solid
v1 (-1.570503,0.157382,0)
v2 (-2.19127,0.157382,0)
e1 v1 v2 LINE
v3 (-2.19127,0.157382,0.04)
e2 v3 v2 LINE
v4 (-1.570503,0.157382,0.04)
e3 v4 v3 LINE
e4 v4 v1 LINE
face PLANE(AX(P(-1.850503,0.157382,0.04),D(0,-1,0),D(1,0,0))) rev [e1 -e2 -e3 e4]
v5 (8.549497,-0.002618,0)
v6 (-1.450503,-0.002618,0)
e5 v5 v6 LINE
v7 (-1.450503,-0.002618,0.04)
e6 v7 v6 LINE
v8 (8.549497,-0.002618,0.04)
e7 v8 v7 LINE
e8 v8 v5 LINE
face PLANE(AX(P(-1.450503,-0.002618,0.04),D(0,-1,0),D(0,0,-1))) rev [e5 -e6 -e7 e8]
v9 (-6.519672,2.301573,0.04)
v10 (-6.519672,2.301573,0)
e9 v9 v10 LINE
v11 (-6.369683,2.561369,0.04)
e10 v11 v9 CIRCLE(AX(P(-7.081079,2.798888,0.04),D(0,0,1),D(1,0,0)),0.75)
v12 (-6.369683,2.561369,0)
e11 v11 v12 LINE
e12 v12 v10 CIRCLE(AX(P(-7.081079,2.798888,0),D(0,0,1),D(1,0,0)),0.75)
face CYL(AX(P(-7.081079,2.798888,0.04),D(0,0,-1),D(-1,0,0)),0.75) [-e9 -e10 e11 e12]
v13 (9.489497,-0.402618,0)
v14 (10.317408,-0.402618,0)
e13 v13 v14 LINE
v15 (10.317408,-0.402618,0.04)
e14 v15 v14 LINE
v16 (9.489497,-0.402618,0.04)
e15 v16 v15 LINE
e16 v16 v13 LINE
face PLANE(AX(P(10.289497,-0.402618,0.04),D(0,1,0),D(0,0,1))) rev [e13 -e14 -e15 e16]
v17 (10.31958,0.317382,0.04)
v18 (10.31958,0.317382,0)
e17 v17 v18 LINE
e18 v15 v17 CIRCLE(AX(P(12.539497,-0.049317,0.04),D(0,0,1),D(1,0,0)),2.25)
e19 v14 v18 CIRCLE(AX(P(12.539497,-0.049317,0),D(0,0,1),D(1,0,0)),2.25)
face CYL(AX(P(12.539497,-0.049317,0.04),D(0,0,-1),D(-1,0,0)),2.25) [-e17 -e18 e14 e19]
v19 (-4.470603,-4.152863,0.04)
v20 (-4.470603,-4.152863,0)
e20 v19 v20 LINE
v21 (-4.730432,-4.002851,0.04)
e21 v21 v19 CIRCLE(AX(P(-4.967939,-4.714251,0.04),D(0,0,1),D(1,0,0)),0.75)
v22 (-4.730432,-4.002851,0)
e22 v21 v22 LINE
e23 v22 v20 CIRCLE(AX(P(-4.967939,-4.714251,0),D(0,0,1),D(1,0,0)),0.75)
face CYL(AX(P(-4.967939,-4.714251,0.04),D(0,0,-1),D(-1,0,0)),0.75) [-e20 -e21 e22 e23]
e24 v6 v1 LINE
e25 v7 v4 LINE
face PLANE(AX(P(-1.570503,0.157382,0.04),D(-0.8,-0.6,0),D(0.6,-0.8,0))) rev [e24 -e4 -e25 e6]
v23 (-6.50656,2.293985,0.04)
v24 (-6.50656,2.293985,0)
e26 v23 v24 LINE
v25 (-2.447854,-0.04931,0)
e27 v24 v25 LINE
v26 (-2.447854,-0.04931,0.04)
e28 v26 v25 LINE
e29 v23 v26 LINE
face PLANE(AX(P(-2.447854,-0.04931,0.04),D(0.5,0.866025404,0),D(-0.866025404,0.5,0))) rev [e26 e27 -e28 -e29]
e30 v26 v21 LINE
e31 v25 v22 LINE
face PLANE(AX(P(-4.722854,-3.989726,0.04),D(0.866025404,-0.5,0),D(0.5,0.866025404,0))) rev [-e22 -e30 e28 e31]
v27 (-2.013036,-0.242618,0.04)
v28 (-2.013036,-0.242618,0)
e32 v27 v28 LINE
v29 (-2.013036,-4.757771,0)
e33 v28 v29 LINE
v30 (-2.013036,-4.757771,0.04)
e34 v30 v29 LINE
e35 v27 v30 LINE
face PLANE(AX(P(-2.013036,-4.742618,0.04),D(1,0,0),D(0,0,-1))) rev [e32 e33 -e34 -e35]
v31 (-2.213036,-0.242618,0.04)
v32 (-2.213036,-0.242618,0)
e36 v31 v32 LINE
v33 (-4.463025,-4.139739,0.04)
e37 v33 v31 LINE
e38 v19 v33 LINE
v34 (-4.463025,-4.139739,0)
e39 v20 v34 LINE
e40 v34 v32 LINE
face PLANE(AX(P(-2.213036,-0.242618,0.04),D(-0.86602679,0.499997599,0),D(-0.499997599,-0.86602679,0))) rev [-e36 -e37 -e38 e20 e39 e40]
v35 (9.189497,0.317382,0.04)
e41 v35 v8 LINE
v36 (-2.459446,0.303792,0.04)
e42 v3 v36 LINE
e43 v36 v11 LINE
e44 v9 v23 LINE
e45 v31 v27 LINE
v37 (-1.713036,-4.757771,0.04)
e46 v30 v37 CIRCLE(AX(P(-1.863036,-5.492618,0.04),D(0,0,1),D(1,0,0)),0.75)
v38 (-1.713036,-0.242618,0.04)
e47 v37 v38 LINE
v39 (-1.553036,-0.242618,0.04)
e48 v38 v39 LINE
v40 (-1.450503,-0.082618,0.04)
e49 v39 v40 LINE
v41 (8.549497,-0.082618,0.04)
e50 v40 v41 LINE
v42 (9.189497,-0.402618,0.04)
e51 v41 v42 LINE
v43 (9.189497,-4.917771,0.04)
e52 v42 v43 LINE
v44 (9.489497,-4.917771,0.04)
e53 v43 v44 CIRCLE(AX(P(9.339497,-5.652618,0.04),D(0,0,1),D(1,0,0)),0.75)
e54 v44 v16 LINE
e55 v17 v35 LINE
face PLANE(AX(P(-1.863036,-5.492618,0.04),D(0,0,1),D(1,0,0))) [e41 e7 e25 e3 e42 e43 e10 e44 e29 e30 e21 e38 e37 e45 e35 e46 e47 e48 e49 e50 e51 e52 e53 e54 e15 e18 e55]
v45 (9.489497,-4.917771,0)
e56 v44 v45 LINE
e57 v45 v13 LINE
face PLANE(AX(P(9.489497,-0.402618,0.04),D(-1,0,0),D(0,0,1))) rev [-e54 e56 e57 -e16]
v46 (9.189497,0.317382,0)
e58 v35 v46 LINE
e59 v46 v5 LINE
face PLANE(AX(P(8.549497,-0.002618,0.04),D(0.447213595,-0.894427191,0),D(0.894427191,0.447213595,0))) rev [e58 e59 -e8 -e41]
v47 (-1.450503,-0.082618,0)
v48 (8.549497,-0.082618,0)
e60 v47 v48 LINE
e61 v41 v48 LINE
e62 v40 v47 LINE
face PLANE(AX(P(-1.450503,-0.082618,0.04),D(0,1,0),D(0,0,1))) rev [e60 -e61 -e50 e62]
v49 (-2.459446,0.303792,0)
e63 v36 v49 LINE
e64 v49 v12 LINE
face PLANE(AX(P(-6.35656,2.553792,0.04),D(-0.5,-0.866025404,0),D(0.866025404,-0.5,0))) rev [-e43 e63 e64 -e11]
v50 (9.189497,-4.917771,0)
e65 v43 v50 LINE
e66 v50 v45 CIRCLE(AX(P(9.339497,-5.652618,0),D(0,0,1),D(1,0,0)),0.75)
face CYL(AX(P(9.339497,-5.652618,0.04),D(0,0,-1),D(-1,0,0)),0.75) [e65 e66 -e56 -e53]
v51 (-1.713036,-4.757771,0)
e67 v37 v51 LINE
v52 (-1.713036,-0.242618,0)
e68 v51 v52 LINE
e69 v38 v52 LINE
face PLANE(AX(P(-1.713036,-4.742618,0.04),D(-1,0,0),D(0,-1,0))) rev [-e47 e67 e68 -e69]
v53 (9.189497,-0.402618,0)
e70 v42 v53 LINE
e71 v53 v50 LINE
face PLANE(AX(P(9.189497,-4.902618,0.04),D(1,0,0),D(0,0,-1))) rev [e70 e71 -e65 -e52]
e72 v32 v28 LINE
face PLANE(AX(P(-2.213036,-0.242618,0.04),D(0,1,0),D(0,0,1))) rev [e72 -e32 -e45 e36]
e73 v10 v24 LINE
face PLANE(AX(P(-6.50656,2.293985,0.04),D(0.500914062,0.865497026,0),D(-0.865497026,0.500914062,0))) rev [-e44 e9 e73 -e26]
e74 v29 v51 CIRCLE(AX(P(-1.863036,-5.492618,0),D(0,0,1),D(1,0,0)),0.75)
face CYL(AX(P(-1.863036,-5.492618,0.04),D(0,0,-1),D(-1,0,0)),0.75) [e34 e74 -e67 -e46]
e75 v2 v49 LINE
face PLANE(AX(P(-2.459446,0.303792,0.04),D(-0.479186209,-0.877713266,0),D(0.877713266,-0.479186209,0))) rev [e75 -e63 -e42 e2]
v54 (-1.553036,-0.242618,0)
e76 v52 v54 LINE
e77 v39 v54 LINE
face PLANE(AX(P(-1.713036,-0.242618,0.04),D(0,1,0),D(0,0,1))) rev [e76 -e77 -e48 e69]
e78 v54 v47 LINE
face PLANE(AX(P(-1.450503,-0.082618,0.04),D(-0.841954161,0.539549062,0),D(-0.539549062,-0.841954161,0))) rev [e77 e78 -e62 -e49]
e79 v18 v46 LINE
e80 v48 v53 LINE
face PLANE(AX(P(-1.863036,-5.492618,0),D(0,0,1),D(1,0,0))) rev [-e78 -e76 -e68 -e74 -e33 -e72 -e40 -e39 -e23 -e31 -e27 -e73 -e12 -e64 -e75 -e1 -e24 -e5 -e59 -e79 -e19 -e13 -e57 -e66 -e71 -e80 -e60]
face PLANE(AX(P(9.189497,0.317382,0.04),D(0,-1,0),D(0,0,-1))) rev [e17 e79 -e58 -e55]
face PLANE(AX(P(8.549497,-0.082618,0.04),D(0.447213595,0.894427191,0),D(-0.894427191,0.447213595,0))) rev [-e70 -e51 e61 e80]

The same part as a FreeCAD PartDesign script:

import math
import FreeCAD as App
import Part
import Sketcher

V = App.Vector
Q = App.Units.Quantity

doc = App.newDocument("Part")
body = doc.addObject("PartDesign::Body", "Body")

# Sketch on XY plane
sketch1 = body.newObject("Sketcher::SketchObject", "Sketch")
sketch1.AttachmentSupport = (doc.getObject("XY_Plane"), [""])
sketch1.MapMode = "FlatFace"
sketch1.addGeometry([
    Part.LineSegment(V(-1.451, -0.003, 0), V(-1.571, 0.157, 0)),  # 0
    Part.LineSegment(V(-1.571, 0.157, 0), V(-2.191, 0.157, 0)),  # 1
    Part.LineSegment(V(-2.191, 0.157, 0), V(-2.459, 0.304, 0)),  # 2
    Part.LineSegment(V(-2.459, 0.304, 0), V(-6.357, 2.554, 0)),  # 3
    Part.LineSegment(V(-6.357, 2.554, 0), V(-6.37, 2.561, 0)),  # 4
    Part.ArcOfCircle(Part.Circle(V(-7.081, 2.799, 0), V(0, 0, 1), 0.75), math.radians(-18), math.radians(318)),  # 5
    Part.LineSegment(V(-6.52, 2.302, 0), V(-6.507, 2.294, 0)),  # 6
    Part.LineSegment(V(-6.507, 2.294, 0), V(-2.448, -0.049, 0)),  # 7
    Part.LineSegment(V(-2.448, -0.049, 0), V(-4.723, -3.99, 0)),  # 8
    Part.LineSegment(V(-4.723, -3.99, 0), V(-4.73, -4.003, 0)),  # 9
    Part.ArcOfCircle(Part.Circle(V(-4.968, -4.714, 0), V(0, 0, 1), 0.75), math.radians(72), math.radians(408)),  # 10
    Part.LineSegment(V(-4.471, -4.153, 0), V(-4.463, -4.14, 0)),  # 11
    Part.LineSegment(V(-4.463, -4.14, 0), V(-2.213, -0.243, 0)),  # 12
    Part.LineSegment(V(-2.213, -0.243, 0), V(-2.013, -0.243, 0)),  # 13
    Part.LineSegment(V(-2.013, -0.243, 0), V(-2.013, -4.758, 0)),  # 14
    Part.ArcOfCircle(Part.Circle(V(-1.863, -5.493, 0), V(0, 0, 1), 0.75), math.radians(102), math.radians(438)),  # 15
    Part.LineSegment(V(-1.713, -4.758, 0), V(-1.713, -0.243, 0)),  # 16
    Part.LineSegment(V(-1.713, -0.243, 0), V(-1.553, -0.243, 0)),  # 17
    Part.LineSegment(V(-1.553, -0.243, 0), V(-1.451, -0.083, 0)),  # 18
    Part.LineSegment(V(-1.451, -0.083, 0), V(8.549, -0.083, 0)),  # 19
    Part.LineSegment(V(8.549, -0.083, 0), V(9.189, -0.403, 0)),  # 20
    Part.LineSegment(V(9.189, -0.403, 0), V(9.189, -4.918, 0)),  # 21
    Part.ArcOfCircle(Part.Circle(V(9.339, -5.653, 0), V(0, 0, 1), 0.75), math.radians(102), math.radians(438)),  # 22
    Part.LineSegment(V(9.489, -4.918, 0), V(9.489, -0.403, 0)),  # 23
    Part.LineSegment(V(9.489, -0.403, 0), V(10.317, -0.403, 0)),  # 24
    Part.ArcOfCircle(Part.Circle(V(12.539, -0.049, 0), V(0, 0, 1), 2.25), math.radians(-171), math.radians(171)),  # 25
    Part.LineSegment(V(10.32, 0.317, 0), V(9.189, 0.317, 0)),  # 26
    Part.LineSegment(V(9.189, 0.317, 0), V(8.549, -0.003, 0)),  # 27
    Part.LineSegment(V(8.549, -0.003, 0), V(-1.451, -0.003, 0)),  # 28
], False)
sketch1.addConstraint([
    Sketcher.Constraint("Coincident", 0, 2, 1, 1),
    Sketcher.Constraint("Coincident", 1, 2, 2, 1),
    Sketcher.Constraint("Coincident", 2, 2, 3, 1),
    Sketcher.Constraint("Coincident", 3, 2, 4, 1),
    Sketcher.Constraint("Coincident", 4, 2, 5, 1),
    Sketcher.Constraint("Coincident", 5, 2, 6, 1),
    Sketcher.Constraint("Coincident", 6, 2, 7, 1),
    Sketcher.Constraint("Coincident", 7, 2, 8, 1),
    Sketcher.Constraint("Coincident", 8, 2, 9, 1),
    Sketcher.Constraint("Coincident", 9, 2, 10, 1),
    Sketcher.Constraint("Coincident", 10, 2, 11, 1),
    Sketcher.Constraint("Coincident", 11, 2, 12, 1),
    Sketcher.Constraint("Coincident", 12, 2, 13, 1),
    Sketcher.Constraint("Coincident", 13, 2, 14, 1),
    Sketcher.Constraint("Coincident", 14, 2, 15, 1),
    Sketcher.Constraint("Coincident", 15, 2, 16, 1),
    Sketcher.Constraint("Coincident", 16, 2, 17, 1),
    Sketcher.Constraint("Coincident", 17, 2, 18, 1),
    Sketcher.Constraint("Coincident", 18, 2, 19, 1),
    Sketcher.Constraint("Coincident", 19, 2, 20, 1),
    Sketcher.Constraint("Coincident", 20, 2, 21, 1),
    Sketcher.Constraint("Coincident", 21, 2, 22, 1),
    Sketcher.Constraint("Coincident", 22, 2, 23, 1),
    Sketcher.Constraint("Coincident", 23, 2, 24, 1),
    Sketcher.Constraint("Coincident", 24, 2, 25, 1),
    Sketcher.Constraint("Coincident", 25, 2, 26, 1),
    Sketcher.Constraint("Coincident", 26, 2, 27, 1),
    Sketcher.Constraint("Coincident", 27, 2, 28, 1),
    Sketcher.Constraint("Coincident", 28, 2, 0, 1),
    Sketcher.Constraint("Horizontal", 1),
    Sketcher.Constraint("Horizontal", 13),
    Sketcher.Constraint("Vertical", 14),
    Sketcher.Constraint("Vertical", 16),
    Sketcher.Constraint("Horizontal", 17),
    Sketcher.Constraint("Horizontal", 19),
    Sketcher.Constraint("Vertical", 21),
    Sketcher.Constraint("Vertical", 23),
    Sketcher.Constraint("Horizontal", 24),
    Sketcher.Constraint("Horizontal", 26),
    Sketcher.Constraint("Horizontal", 28),
    Sketcher.Constraint("Equal", 5, 10),
    Sketcher.Constraint("Equal", 10, 15),
    Sketcher.Constraint("Equal", 15, 22),
    Sketcher.Constraint("Parallel", 3, 4),
    Sketcher.Constraint("Parallel", 4, 7),
    Sketcher.Constraint("Perpendicular", 7, 8),
    Sketcher.Constraint("Parallel", 8, 9),
    Sketcher.Constraint("Horizontal", 14, 2, 15, 2),
    Sketcher.Constraint("Horizontal", 13, 2, 16, 2),
    Sketcher.Constraint("Horizontal", 21, 2, 22, 2),
    Sketcher.Constraint("Horizontal", 20, 2, 23, 2),
    Sketcher.Constraint("Vertical", 21, 2, 26, 2),
    Sketcher.Constraint("Vertical", 19, 2, 27, 2),
    Sketcher.Constraint("Vertical", 18, 2, 28, 2),
    Sketcher.Constraint("Equal", 16, 21),
    Sketcher.Constraint("Equal", 9, 11),
    Sketcher.Constraint("Equal", 3, 12),
    Sketcher.Constraint("Equal", 20, 27),
    Sketcher.Constraint("DistanceX", 19, 1, 19, 2, Q("10 mm")),
    Sketcher.Constraint("Angle", 3, Q("150 deg")),
    Sketcher.Constraint("Radius", 5, Q("0.75 mm")),
    Sketcher.Constraint("Radius", 25, Q("2.25 mm")),
    Sketcher.Constraint("DistanceX", 13, 1, 13, 2, Q("0.2 mm")),
    Sketcher.Constraint("Distance", 0, Q("0.2 mm")),
    Sketcher.Constraint("Distance", 3, Q("4.5 mm")),
    Sketcher.Constraint("DistanceX", 17, 1, 17, 2, Q("0.16 mm")),
    Sketcher.Constraint("DistanceX", 22, 3, 25, 3, Q("3.2 mm")),
    Sketcher.Constraint("DistanceY", 12, 2, 1, 2, Q("0.4 mm")),
    Sketcher.Constraint("DistanceX", 14, 2, 15, 2, Q("0.3 mm")),
    Sketcher.Constraint("DistanceX", 21, 2, 22, 2, Q("0.3 mm")),
    Sketcher.Constraint("DistanceY", 19, 2, 25, 2, Q("0.4 mm")),
    Sketcher.Constraint("Distance", 8, Q("4.55 mm")),
    Sketcher.Constraint("DistanceY", 22, 3, 15, 3, Q("0.16 mm")),
    Sketcher.Constraint("DistanceY", 15, 3, 0, 2, Q("5.65 mm")),
    Sketcher.Constraint("DistanceX", 0, 2, 22, 3, Q("10.91 mm")),
    Sketcher.Constraint("DistanceX", 6, 2, 3, 2, Q("0.15 mm")),
    Sketcher.Constraint("DistanceY", 17, 2, 18, 2, Q("0.16 mm")),
    Sketcher.Constraint("DistanceX", 24, 1, 24, 2, Q("0.827911 mm")),
    Sketcher.Constraint("DistanceY", 10, 3, 9, 2, Q("0.7114 mm")),
    Sketcher.Constraint("Distance", 2, Q("0.305539 mm")),
    Sketcher.Constraint("Distance", 6, Q("0.01515 mm")),
    Sketcher.Constraint("Distance", 7, Q("4.68659 mm")),
    Sketcher.Constraint("DistanceX", 1, 2, 1, 1, Q("0.620767 mm")),
    Sketcher.Constraint("DistanceX", 5, 3, -1, 1, Q("7.081079 mm")),
    Sketcher.Constraint("DistanceY", -1, 1, 5, 3, Q("2.798888 mm")),
    Sketcher.Constraint("DistanceX", 10, 3, -1, 1, Q("4.967939 mm")),
    Sketcher.Constraint("DistanceY", 10, 3, -1, 1, Q("4.714251 mm")),
    Sketcher.Constraint("DistanceX", 1, 2, -1, 1, Q("2.19127 mm")),
    Sketcher.Constraint("DistanceX", 3, 2, -1, 1, Q("6.35656 mm")),
    Sketcher.Constraint("DistanceY", -1, 1, 4, 2, Q("2.561369 mm")),
    Sketcher.Constraint("DistanceY", 11, 2, -1, 1, Q("4.139739 mm")),
    Sketcher.Constraint("DistanceX", 2, 2, 15, 3, Q("0.59641 mm")),
])
pad1 = body.newObject("PartDesign::Pad", "Pad")
pad1.Profile = sketch1
pad1.Length = 0.04

doc.recompute()
